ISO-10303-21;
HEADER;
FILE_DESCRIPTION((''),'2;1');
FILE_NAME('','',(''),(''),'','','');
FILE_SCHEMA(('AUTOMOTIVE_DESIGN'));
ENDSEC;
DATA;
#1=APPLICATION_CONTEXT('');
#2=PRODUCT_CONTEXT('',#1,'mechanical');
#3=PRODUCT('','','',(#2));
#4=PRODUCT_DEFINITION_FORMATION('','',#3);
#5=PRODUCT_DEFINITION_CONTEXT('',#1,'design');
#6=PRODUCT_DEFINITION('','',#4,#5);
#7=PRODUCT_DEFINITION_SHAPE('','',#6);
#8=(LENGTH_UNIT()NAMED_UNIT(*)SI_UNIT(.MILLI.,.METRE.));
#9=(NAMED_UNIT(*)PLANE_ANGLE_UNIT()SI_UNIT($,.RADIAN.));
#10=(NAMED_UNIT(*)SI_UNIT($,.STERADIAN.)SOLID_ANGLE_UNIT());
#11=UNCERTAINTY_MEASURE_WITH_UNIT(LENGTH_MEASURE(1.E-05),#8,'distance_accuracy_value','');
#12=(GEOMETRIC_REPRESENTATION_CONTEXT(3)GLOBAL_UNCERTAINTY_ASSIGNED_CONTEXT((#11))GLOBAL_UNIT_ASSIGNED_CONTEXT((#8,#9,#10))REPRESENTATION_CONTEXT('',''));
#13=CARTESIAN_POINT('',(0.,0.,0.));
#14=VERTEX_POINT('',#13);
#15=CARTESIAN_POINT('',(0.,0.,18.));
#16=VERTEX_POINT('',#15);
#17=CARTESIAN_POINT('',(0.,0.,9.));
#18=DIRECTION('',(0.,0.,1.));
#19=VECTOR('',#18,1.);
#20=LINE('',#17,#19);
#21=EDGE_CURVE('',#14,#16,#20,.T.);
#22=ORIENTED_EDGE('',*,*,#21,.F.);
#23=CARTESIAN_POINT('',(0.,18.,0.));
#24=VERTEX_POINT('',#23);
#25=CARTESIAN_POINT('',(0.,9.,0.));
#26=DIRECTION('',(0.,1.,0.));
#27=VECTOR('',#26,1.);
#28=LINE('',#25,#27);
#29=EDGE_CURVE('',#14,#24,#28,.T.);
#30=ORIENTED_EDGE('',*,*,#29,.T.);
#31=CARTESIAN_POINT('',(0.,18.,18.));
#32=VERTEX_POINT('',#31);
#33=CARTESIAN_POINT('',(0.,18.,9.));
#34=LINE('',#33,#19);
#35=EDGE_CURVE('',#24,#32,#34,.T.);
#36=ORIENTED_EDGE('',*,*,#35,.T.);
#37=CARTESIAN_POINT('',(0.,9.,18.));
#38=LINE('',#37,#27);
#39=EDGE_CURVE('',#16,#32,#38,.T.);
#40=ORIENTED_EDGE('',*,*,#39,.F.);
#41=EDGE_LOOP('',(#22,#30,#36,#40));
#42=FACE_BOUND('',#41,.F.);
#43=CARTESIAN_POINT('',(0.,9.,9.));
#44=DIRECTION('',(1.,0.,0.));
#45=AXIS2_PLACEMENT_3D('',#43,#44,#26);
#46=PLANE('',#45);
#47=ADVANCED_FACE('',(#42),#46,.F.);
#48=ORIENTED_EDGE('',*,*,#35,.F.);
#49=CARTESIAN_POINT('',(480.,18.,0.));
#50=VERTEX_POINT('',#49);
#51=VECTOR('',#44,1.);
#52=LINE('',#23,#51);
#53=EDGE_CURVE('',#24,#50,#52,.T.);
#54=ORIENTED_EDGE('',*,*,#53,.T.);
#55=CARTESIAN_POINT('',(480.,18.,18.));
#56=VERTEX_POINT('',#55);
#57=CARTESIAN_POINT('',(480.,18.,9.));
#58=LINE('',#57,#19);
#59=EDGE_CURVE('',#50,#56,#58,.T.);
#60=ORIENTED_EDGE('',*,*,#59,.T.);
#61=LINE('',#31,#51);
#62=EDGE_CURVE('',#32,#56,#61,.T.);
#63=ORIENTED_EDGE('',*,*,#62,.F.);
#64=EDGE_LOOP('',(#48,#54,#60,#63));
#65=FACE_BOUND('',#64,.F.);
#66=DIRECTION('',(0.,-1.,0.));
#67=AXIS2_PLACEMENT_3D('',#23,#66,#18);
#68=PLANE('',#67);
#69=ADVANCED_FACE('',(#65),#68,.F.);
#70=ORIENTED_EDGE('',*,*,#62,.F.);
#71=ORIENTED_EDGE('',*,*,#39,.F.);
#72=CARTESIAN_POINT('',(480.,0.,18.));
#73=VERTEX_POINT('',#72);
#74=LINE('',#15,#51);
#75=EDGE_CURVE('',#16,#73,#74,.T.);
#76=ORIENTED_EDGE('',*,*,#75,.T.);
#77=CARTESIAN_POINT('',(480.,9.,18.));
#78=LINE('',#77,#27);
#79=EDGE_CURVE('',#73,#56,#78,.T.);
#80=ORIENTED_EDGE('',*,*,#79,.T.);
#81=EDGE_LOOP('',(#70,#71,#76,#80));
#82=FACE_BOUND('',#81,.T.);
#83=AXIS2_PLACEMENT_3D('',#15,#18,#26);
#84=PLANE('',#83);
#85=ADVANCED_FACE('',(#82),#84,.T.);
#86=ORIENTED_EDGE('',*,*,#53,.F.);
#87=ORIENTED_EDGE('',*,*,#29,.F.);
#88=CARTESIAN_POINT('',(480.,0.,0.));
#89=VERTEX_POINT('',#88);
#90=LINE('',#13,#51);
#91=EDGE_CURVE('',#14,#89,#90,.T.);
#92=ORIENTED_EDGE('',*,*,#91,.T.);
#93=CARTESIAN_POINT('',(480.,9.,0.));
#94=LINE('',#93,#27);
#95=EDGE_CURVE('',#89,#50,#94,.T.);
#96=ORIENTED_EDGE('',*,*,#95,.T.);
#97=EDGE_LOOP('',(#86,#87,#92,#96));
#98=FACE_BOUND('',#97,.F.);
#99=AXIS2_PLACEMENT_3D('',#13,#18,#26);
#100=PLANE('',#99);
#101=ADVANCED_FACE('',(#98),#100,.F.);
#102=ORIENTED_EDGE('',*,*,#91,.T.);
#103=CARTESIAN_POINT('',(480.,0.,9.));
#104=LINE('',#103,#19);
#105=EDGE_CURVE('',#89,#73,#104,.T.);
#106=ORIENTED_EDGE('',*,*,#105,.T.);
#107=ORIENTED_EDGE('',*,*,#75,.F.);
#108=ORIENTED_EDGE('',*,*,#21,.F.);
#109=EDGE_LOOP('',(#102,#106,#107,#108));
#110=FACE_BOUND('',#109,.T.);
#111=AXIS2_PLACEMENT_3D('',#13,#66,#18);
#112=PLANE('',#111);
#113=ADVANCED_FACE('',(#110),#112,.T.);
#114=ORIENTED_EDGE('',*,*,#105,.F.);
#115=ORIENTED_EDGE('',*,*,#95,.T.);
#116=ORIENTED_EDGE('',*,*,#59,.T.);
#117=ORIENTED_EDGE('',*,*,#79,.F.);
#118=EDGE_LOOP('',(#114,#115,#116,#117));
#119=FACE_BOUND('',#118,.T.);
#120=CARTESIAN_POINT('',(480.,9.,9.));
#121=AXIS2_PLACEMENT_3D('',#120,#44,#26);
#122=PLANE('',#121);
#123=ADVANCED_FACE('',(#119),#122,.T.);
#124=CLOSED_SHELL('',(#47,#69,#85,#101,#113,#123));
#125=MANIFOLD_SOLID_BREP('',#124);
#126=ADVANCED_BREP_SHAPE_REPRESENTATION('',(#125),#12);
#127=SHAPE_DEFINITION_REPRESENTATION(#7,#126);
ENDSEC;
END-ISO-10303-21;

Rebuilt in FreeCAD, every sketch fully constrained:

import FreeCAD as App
import Part
import Sketcher
Q = App.Units.Quantity

doc = App.newDocument("Part")
params = doc.addObject("Spreadsheet::Sheet", "Params")
for row, (alias, value) in enumerate([
    ("sketch1_width", "18 mm"),
    ("pad1_length", "480 mm"),
], start=1):
    params.set(f"A{row}", alias)
    params.set(f"B{row}", "=" + value)
    params.setAlias(f"B{row}", alias)

body = doc.addObject("PartDesign::Body", "Body")

# Sketch on YZ plane
sketch1 = body.newObject("Sketcher::SketchObject", "Sketch")
sketch1.AttachmentSupport = (doc.getObject("YZ_Plane"), [""])
sketch1.MapMode = "FlatFace"
sketch1.addGeometry(Part.LineSegment(App.Vector(0, 18, 0), App.Vector(0, 0, 0)), False)
sketch1.addGeometry(Part.LineSegment(App.Vector(0, 0, 0), App.Vector(18, 0, 0)), False)
sketch1.addGeometry(Part.LineSegment(App.Vector(18, 0, 0), App.Vector(18, 18, 0)), False)
sketch1.addGeometry(Part.LineSegment(App.Vector(18, 18, 0), App.Vector(0, 18, 0)), False)
sketch1.addConstraint(Sketcher.Constraint("Coincident", 0, 2, 1, 1))
sketch1.addConstraint(Sketcher.Constraint("Coincident", 1, 2, 2, 1))
sketch1.addConstraint(Sketcher.Constraint("Coincident", 2, 2, 3, 1))
sketch1.addConstraint(Sketcher.Constraint("Coincident", 3, 2, 0, 1))
sketch1.addConstraint(Sketcher.Constraint("Vertical", 0))
sketch1.addConstraint(Sketcher.Constraint("Horizontal", 1))
sketch1.addConstraint(Sketcher.Constraint("Vertical", 2))
sketch1.addConstraint(Sketcher.Constraint("Horizontal", 3))
sketch1.addConstraint(Sketcher.Constraint("Coincident", 0, 2, -1, 1))
sketch1.addConstraint(Sketcher.Constraint("Equal", 3, 0))
sketch1.addConstraint(Sketcher.Constraint("DistanceX", 1, 1, 1, 2, Q("18 mm")))
sketch1.setExpression("Constraints[10]", "Params.sketch1_width")
pad1 = body.newObject("PartDesign::Pad", "Pad")
pad1.Profile = sketch1
pad1.setExpression("Length", "Params.pad1_length")

doc.recompute()
